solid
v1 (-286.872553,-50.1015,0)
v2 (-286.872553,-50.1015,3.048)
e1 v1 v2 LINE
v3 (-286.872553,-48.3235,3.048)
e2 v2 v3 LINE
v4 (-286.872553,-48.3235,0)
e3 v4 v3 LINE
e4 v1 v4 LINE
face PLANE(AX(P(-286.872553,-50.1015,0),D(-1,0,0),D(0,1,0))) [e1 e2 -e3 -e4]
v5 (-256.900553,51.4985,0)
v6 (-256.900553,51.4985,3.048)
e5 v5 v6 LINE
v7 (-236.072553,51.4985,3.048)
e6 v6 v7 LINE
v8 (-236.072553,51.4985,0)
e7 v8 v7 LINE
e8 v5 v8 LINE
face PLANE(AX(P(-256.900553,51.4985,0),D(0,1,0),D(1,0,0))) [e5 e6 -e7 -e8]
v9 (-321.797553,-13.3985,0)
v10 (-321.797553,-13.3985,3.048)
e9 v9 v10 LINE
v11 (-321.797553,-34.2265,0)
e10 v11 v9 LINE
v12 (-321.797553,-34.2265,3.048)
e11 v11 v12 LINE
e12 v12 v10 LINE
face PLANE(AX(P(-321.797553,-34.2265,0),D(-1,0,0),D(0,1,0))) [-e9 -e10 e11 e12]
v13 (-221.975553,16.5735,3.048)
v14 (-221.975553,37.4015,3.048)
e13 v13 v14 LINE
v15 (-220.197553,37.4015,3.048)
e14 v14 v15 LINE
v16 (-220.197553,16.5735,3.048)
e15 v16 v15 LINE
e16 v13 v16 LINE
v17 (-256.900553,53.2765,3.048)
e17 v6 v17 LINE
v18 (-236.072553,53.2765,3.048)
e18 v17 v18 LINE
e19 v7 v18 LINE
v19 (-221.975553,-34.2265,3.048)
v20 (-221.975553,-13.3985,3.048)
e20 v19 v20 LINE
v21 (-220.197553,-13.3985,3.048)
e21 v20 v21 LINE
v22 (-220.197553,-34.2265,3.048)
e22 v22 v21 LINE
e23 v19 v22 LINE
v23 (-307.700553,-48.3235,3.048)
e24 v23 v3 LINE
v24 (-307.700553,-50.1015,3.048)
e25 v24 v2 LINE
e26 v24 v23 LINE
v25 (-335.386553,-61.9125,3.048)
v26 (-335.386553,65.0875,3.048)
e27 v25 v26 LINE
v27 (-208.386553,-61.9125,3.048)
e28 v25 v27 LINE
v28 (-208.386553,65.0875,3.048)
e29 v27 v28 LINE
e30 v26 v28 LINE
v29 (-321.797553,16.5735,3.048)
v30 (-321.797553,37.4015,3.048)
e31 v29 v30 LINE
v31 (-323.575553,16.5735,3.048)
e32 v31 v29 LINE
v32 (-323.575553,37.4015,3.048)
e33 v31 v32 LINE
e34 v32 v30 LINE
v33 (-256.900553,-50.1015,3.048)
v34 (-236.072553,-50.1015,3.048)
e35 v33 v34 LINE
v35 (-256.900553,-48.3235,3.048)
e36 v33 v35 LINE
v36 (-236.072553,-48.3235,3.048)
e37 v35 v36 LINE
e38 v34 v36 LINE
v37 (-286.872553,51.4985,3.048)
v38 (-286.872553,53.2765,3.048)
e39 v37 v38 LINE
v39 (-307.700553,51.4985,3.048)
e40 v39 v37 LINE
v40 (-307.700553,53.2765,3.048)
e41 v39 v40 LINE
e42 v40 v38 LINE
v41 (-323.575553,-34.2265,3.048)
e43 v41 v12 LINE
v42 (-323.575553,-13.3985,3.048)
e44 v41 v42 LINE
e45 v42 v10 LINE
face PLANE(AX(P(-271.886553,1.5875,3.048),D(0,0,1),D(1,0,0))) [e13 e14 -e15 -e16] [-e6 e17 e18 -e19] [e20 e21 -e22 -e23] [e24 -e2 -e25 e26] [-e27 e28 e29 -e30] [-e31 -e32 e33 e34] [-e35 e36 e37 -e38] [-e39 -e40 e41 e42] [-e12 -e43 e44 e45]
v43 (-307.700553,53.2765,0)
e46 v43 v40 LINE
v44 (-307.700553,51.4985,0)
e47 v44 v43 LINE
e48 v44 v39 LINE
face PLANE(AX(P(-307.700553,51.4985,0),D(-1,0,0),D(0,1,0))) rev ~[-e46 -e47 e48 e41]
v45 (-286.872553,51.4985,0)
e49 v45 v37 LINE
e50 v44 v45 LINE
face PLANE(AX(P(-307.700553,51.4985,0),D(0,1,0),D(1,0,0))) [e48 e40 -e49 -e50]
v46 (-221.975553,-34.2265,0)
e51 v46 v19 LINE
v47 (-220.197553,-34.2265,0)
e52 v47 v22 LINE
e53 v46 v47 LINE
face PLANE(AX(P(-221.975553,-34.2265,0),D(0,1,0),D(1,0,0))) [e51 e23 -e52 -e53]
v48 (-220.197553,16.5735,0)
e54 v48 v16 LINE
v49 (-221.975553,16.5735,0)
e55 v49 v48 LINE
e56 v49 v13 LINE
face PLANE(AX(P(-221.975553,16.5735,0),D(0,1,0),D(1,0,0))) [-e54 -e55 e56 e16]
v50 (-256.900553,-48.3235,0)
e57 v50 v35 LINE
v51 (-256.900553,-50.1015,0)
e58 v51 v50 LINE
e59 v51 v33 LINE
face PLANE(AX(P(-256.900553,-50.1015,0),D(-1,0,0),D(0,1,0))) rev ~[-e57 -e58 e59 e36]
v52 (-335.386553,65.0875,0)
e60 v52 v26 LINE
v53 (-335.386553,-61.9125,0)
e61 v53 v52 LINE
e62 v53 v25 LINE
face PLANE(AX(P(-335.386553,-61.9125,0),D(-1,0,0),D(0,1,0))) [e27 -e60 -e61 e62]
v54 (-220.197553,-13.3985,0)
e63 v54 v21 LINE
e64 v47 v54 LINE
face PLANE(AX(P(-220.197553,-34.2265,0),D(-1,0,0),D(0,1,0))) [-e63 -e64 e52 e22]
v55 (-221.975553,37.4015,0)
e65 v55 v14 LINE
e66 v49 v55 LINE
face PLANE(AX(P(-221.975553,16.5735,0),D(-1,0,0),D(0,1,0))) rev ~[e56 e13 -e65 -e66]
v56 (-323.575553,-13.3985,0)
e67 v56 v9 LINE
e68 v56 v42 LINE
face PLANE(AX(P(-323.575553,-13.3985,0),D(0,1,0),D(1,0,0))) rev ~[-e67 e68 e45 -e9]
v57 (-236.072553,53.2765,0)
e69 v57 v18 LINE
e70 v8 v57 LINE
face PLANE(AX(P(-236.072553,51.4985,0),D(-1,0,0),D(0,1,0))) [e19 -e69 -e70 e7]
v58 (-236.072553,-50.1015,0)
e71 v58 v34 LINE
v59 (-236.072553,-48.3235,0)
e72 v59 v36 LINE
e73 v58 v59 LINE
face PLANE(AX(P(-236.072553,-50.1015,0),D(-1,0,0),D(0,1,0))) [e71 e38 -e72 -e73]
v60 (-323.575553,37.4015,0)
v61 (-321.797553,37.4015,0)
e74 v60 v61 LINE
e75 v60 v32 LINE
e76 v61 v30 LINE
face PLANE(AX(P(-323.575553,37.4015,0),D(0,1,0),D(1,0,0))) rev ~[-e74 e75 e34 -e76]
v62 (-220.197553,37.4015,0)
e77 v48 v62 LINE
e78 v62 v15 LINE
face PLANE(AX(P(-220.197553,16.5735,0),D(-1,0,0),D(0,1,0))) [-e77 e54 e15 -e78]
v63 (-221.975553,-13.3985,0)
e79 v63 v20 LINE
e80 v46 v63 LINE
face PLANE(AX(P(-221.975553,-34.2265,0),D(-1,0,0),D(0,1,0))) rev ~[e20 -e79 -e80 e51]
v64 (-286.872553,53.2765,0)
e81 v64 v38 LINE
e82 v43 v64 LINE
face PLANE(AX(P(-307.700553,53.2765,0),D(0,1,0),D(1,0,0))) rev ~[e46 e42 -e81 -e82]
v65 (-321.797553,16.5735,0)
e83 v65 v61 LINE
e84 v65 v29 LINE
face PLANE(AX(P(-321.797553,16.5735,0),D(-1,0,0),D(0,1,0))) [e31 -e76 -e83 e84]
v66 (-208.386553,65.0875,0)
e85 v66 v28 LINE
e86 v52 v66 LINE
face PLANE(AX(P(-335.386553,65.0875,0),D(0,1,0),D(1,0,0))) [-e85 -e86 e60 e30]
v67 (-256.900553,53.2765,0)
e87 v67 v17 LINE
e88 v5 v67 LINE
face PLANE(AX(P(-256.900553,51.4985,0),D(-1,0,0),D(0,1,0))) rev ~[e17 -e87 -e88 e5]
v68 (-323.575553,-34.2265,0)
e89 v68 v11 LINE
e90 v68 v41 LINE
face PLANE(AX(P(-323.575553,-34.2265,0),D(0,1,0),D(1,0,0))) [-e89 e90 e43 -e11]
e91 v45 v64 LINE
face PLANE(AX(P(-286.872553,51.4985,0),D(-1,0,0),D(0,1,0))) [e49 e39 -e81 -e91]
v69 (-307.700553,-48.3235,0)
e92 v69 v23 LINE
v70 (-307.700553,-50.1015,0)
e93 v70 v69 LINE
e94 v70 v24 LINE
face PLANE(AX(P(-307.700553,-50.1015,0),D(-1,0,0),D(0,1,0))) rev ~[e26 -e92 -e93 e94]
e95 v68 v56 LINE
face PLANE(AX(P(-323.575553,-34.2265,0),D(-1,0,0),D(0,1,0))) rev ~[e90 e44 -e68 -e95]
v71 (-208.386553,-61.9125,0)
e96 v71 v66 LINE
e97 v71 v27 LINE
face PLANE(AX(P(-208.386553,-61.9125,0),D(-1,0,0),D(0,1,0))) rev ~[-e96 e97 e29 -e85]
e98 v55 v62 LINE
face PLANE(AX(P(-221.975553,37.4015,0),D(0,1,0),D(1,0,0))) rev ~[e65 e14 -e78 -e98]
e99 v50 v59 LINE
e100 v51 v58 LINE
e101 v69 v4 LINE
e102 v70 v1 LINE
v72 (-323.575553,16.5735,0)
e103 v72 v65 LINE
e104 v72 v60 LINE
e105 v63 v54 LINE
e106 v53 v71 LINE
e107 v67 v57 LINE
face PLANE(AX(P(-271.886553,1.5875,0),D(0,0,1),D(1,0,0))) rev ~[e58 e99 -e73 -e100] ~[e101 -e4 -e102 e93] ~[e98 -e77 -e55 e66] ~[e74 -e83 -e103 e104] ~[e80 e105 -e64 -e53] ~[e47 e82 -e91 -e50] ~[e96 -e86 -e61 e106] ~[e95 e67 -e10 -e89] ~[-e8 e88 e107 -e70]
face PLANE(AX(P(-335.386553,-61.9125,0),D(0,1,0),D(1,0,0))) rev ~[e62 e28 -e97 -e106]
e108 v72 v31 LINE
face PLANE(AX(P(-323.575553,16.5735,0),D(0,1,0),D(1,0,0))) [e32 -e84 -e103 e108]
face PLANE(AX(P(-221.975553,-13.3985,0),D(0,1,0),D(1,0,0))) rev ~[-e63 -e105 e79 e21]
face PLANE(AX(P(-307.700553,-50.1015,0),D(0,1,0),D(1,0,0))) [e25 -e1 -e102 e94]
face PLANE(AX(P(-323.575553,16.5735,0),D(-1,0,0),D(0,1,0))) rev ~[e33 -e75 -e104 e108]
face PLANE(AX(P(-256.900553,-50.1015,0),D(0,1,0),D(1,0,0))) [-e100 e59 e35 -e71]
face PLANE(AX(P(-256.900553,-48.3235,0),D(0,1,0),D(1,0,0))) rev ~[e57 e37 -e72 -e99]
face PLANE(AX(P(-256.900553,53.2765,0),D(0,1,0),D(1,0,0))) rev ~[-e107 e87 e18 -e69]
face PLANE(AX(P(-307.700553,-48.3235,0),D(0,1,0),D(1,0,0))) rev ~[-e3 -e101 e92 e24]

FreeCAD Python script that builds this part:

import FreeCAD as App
import Part
import Sketcher
Q = App.Units.Quantity


def add_polygon(sketch, points):
    """Adds a closed chain of lines whose ends are joined by coincident constraints."""
    first, n = sketch.GeometryCount, len(points)
    for a, b in zip(points, points[1:] + points[:1]):
        sketch.addGeometry(Part.LineSegment(App.Vector(*a, 0), App.Vector(*b, 0)), False)
    for i in range(n):
        sketch.addConstraint(Sketcher.Constraint("Coincident", first + i, 2, first + (i + 1) % n, 1))

doc = App.newDocument("Part")
params = doc.addObject("Spreadsheet::Sheet", "Params")
for row, (alias, value) in enumerate([
    ("sketch1_width", "5 in"),
    ("sketch1_width2", "0.82 in"),
    ("sketch1_width3", "0.07 in"),
    ("pad1_length", "0.12 in"),
], start=1):
    params.set(f"A{row}", alias)
    params.set(f"B{row}", "=" + value)
    params.setAlias(f"B{row}", alias)

body = doc.addObject("PartDesign::Body", "Body")

# Sketch on XY plane
sketch1 = body.newObject("Sketcher::SketchObject", "Sketch")
sketch1.AttachmentSupport = (doc.getObject("XY_Plane"), [""])
sketch1.MapMode = "FlatFace"
add_polygon(sketch1, [(-335.4, 65.1), (-335.4, -61.9), (-208.4, -61.9), (-208.4, 65.1)])  # lines 0-3
add_polygon(sketch1, [(-286.9, -50.1), (-307.7, -50.1), (-307.7, -48.3), (-286.9, -48.3)])  # lines 4-7
add_polygon(sketch1, [(-321.8, -34.2), (-323.6, -34.2), (-323.6, -13.4), (-321.8, -13.4)])  # lines 8-11
add_polygon(sketch1, [(-236.1, -50.1), (-256.9, -50.1), (-256.9, -48.3), (-236.1, -48.3)])  # lines 12-15
add_polygon(sketch1, [(-220.2, -34.2), (-222, -34.2), (-222, -13.4), (-220.2, -13.4)])  # lines 16-19
add_polygon(sketch1, [(-321.8, 16.6), (-323.6, 16.6), (-323.6, 37.4), (-321.8, 37.4)])  # lines 20-23
add_polygon(sketch1, [(-286.9, 51.5), (-307.7, 51.5), (-307.7, 53.3), (-286.9, 53.3)])  # lines 24-27
add_polygon(sketch1, [(-220.2, 16.6), (-222, 16.6), (-222, 37.4), (-220.2, 37.4)])  # lines 28-31
add_polygon(sketch1, [(-236.1, 51.5), (-256.9, 51.5), (-256.9, 53.3), (-236.1, 53.3)])  # lines 32-35
sketch1.addConstraint(Sketcher.Constraint("Vertical", 0))
sketch1.addConstraint(Sketcher.Constraint("Horizontal", 1))
sketch1.addConstraint(Sketcher.Constraint("Vertical", 2))
sketch1.addConstraint(Sketcher.Constraint("Horizontal", 3))
sketch1.addConstraint(Sketcher.Constraint("Horizontal", 4))
sketch1.addConstraint(Sketcher.Constraint("Vertical", 5))
sketch1.addConstraint(Sketcher.Constraint("Horizontal", 6))
sketch1.addConstraint(Sketcher.Constraint("Vertical", 7))
sketch1.addConstraint(Sketcher.Constraint("Horizontal", 8))
sketch1.addConstraint(Sketcher.Constraint("Vertical", 9))
sketch1.addConstraint(Sketcher.Constraint("Horizontal", 10))
sketch1.addConstraint(Sketcher.Constraint("Vertical", 11))
sketch1.addConstraint(Sketcher.Constraint("Horizontal", 12))
sketch1.addConstraint(Sketcher.Constraint("Vertical", 13))
sketch1.addConstraint(Sketcher.Constraint("Horizontal", 14))
sketch1.addConstraint(Sketcher.Constraint("Vertical", 15))
sketch1.addConstraint(Sketcher.Constraint("Horizontal", 16))
sketch1.addConstraint(Sketcher.Constraint("Vertical", 17))
sketch1.addConstraint(Sketcher.Constraint("Horizontal", 18))
sketch1.addConstraint(Sketcher.Constraint("Vertical", 19))
sketch1.addConstraint(Sketcher.Constraint("Horizontal", 20))
sketch1.addConstraint(Sketcher.Constraint("Vertical", 21))
sketch1.addConstraint(Sketcher.Constraint("Horizontal", 22))
sketch1.addConstraint(Sketcher.Constraint("Vertical", 23))
sketch1.addConstraint(Sketcher.Constraint("Horizontal", 24))
sketch1.addConstraint(Sketcher.Constraint("Vertical", 25))
sketch1.addConstraint(Sketcher.Constraint("Horizontal", 26))
sketch1.addConstraint(Sketcher.Constraint("Vertical", 27))
sketch1.addConstraint(Sketcher.Constraint("Horizontal", 28))
sketch1.addConstraint(Sketcher.Constraint("Vertical", 29))
sketch1.addConstraint(Sketcher.Constraint("Horizontal", 30))
sketch1.addConstraint(Sketcher.Constraint("Vertical", 31))
sketch1.addConstraint(Sketcher.Constraint("Horizontal", 32))
sketch1.addConstraint(Sketcher.Constraint("Vertical", 33))
sketch1.addConstraint(Sketcher.Constraint("Horizontal", 34))
sketch1.addConstraint(Sketcher.Constraint("Vertical", 35))
sketch1.addConstraint(Sketcher.Constraint("Horizontal", 7, 2, 12, 2))
sketch1.addConstraint(Sketcher.Constraint("Horizontal", 6, 2, 13, 2))
sketch1.addConstraint(Sketcher.Constraint("Horizontal", 11, 2, 16, 2))
sketch1.addConstraint(Sketcher.Constraint("Horizontal", 10, 2, 17, 2))
sketch1.addConstraint(Sketcher.Constraint("Horizontal", 23, 2, 28, 2))
sketch1.addConstraint(Sketcher.Constraint("Horizontal", 22, 2, 29, 2))
sketch1.addConstraint(Sketcher.Constraint("Horizontal", 27, 2, 32, 2))
sketch1.addConstraint(Sketcher.Constraint("Horizontal", 26, 2, 33, 2))
sketch1.addConstraint(Sketcher.Constraint("Vertical", 9, 2, 20, 2))
sketch1.addConstraint(Sketcher.Constraint("Vertical", 11, 2, 22, 2))
sketch1.addConstraint(Sketcher.Constraint("Vertical", 5, 2, 24, 2))
sketch1.addConstraint(Sketcher.Constraint("Vertical", 7, 2, 26, 2))
sketch1.addConstraint(Sketcher.Constraint("Vertical", 17, 2, 28, 2))
sketch1.addConstraint(Sketcher.Constraint("Vertical", 19, 2, 30, 2))
sketch1.addConstraint(Sketcher.Constraint("Vertical", 13, 2, 32, 2))
sketch1.addConstraint(Sketcher.Constraint("Vertical", 15, 2, 34, 2))
sketch1.addConstraint(Sketcher.Constraint("Equal", 6, 12))
sketch1.addConstraint(Sketcher.Constraint("Equal", 10, 16))
sketch1.addConstraint(Sketcher.Constraint("Equal", 3, 0))
sketch1.addConstraint(Sketcher.Constraint("Equal", 30, 5))
sketch1.addConstraint(Sketcher.Constraint("Equal", 34, 9))
sketch1.addConstraint(Sketcher.Constraint("Equal", 19, 21))
sketch1.addConstraint(Sketcher.Constraint("Equal", 15, 25))
sketch1.addConstraint(Sketcher.Constraint("DistanceX", 1, 1, 1, 2, Q("5 in")))
sketch1.addConstraint(Sketcher.Constraint("DistanceX", 4, 2, 12, 2, Q("2 in")))
sketch1.addConstraint(Sketcher.Constraint("DistanceY", 8, 2, 20, 2, Q("2 in")))
sketch1.addConstraint(Sketcher.Constraint("DistanceX", 4, 2, 4, 1, Q("0.82 in")))
sketch1.addConstraint(Sketcher.Constraint("DistanceX", 8, 2, 8, 1, Q("0.07 in")))
sketch1.addConstraint(Sketcher.Constraint("DistanceX", 0, 2, 4, 2, Q("1.09 in")))
sketch1.addConstraint(Sketcher.Constraint("DistanceY", 0, 2, 8, 2, Q("1.09 in")))
sketch1.addConstraint(Sketcher.Constraint("DistanceY", 0, 2, -1, 1, Q("2.4375 in")))
sketch1.addConstraint(Sketcher.Constraint("DistanceY", 0, 2, 4, 2, Q("0.465 in")))
sketch1.addConstraint(Sketcher.Constraint("DistanceX", 8, 2, 5, 2, Q("0.625 in")))
sketch1.addConstraint(Sketcher.Constraint("DistanceX", 14, 2, 16, 2, Q("0.555 in")))
sketch1.addConstraint(Sketcher.Constraint("DistanceY", 22, 2, 24, 2, Q("0.555 in")))
sketch1.addConstraint(Sketcher.Constraint("DistanceX", 0, 2, -1, 1, 335.386553))
sketch1.setExpression("Constraints[95]", "Params.sketch1_width")
sketch1.setExpression("Constraints[98]", "Params.sketch1_width2")
sketch1.setExpression("Constraints[99]", "Params.sketch1_width3")
pad1 = body.newObject("PartDesign::Pad", "Pad")
pad1.Profile = sketch1
pad1.setExpression("Length", "Params.pad1_length")

doc.recompute()
